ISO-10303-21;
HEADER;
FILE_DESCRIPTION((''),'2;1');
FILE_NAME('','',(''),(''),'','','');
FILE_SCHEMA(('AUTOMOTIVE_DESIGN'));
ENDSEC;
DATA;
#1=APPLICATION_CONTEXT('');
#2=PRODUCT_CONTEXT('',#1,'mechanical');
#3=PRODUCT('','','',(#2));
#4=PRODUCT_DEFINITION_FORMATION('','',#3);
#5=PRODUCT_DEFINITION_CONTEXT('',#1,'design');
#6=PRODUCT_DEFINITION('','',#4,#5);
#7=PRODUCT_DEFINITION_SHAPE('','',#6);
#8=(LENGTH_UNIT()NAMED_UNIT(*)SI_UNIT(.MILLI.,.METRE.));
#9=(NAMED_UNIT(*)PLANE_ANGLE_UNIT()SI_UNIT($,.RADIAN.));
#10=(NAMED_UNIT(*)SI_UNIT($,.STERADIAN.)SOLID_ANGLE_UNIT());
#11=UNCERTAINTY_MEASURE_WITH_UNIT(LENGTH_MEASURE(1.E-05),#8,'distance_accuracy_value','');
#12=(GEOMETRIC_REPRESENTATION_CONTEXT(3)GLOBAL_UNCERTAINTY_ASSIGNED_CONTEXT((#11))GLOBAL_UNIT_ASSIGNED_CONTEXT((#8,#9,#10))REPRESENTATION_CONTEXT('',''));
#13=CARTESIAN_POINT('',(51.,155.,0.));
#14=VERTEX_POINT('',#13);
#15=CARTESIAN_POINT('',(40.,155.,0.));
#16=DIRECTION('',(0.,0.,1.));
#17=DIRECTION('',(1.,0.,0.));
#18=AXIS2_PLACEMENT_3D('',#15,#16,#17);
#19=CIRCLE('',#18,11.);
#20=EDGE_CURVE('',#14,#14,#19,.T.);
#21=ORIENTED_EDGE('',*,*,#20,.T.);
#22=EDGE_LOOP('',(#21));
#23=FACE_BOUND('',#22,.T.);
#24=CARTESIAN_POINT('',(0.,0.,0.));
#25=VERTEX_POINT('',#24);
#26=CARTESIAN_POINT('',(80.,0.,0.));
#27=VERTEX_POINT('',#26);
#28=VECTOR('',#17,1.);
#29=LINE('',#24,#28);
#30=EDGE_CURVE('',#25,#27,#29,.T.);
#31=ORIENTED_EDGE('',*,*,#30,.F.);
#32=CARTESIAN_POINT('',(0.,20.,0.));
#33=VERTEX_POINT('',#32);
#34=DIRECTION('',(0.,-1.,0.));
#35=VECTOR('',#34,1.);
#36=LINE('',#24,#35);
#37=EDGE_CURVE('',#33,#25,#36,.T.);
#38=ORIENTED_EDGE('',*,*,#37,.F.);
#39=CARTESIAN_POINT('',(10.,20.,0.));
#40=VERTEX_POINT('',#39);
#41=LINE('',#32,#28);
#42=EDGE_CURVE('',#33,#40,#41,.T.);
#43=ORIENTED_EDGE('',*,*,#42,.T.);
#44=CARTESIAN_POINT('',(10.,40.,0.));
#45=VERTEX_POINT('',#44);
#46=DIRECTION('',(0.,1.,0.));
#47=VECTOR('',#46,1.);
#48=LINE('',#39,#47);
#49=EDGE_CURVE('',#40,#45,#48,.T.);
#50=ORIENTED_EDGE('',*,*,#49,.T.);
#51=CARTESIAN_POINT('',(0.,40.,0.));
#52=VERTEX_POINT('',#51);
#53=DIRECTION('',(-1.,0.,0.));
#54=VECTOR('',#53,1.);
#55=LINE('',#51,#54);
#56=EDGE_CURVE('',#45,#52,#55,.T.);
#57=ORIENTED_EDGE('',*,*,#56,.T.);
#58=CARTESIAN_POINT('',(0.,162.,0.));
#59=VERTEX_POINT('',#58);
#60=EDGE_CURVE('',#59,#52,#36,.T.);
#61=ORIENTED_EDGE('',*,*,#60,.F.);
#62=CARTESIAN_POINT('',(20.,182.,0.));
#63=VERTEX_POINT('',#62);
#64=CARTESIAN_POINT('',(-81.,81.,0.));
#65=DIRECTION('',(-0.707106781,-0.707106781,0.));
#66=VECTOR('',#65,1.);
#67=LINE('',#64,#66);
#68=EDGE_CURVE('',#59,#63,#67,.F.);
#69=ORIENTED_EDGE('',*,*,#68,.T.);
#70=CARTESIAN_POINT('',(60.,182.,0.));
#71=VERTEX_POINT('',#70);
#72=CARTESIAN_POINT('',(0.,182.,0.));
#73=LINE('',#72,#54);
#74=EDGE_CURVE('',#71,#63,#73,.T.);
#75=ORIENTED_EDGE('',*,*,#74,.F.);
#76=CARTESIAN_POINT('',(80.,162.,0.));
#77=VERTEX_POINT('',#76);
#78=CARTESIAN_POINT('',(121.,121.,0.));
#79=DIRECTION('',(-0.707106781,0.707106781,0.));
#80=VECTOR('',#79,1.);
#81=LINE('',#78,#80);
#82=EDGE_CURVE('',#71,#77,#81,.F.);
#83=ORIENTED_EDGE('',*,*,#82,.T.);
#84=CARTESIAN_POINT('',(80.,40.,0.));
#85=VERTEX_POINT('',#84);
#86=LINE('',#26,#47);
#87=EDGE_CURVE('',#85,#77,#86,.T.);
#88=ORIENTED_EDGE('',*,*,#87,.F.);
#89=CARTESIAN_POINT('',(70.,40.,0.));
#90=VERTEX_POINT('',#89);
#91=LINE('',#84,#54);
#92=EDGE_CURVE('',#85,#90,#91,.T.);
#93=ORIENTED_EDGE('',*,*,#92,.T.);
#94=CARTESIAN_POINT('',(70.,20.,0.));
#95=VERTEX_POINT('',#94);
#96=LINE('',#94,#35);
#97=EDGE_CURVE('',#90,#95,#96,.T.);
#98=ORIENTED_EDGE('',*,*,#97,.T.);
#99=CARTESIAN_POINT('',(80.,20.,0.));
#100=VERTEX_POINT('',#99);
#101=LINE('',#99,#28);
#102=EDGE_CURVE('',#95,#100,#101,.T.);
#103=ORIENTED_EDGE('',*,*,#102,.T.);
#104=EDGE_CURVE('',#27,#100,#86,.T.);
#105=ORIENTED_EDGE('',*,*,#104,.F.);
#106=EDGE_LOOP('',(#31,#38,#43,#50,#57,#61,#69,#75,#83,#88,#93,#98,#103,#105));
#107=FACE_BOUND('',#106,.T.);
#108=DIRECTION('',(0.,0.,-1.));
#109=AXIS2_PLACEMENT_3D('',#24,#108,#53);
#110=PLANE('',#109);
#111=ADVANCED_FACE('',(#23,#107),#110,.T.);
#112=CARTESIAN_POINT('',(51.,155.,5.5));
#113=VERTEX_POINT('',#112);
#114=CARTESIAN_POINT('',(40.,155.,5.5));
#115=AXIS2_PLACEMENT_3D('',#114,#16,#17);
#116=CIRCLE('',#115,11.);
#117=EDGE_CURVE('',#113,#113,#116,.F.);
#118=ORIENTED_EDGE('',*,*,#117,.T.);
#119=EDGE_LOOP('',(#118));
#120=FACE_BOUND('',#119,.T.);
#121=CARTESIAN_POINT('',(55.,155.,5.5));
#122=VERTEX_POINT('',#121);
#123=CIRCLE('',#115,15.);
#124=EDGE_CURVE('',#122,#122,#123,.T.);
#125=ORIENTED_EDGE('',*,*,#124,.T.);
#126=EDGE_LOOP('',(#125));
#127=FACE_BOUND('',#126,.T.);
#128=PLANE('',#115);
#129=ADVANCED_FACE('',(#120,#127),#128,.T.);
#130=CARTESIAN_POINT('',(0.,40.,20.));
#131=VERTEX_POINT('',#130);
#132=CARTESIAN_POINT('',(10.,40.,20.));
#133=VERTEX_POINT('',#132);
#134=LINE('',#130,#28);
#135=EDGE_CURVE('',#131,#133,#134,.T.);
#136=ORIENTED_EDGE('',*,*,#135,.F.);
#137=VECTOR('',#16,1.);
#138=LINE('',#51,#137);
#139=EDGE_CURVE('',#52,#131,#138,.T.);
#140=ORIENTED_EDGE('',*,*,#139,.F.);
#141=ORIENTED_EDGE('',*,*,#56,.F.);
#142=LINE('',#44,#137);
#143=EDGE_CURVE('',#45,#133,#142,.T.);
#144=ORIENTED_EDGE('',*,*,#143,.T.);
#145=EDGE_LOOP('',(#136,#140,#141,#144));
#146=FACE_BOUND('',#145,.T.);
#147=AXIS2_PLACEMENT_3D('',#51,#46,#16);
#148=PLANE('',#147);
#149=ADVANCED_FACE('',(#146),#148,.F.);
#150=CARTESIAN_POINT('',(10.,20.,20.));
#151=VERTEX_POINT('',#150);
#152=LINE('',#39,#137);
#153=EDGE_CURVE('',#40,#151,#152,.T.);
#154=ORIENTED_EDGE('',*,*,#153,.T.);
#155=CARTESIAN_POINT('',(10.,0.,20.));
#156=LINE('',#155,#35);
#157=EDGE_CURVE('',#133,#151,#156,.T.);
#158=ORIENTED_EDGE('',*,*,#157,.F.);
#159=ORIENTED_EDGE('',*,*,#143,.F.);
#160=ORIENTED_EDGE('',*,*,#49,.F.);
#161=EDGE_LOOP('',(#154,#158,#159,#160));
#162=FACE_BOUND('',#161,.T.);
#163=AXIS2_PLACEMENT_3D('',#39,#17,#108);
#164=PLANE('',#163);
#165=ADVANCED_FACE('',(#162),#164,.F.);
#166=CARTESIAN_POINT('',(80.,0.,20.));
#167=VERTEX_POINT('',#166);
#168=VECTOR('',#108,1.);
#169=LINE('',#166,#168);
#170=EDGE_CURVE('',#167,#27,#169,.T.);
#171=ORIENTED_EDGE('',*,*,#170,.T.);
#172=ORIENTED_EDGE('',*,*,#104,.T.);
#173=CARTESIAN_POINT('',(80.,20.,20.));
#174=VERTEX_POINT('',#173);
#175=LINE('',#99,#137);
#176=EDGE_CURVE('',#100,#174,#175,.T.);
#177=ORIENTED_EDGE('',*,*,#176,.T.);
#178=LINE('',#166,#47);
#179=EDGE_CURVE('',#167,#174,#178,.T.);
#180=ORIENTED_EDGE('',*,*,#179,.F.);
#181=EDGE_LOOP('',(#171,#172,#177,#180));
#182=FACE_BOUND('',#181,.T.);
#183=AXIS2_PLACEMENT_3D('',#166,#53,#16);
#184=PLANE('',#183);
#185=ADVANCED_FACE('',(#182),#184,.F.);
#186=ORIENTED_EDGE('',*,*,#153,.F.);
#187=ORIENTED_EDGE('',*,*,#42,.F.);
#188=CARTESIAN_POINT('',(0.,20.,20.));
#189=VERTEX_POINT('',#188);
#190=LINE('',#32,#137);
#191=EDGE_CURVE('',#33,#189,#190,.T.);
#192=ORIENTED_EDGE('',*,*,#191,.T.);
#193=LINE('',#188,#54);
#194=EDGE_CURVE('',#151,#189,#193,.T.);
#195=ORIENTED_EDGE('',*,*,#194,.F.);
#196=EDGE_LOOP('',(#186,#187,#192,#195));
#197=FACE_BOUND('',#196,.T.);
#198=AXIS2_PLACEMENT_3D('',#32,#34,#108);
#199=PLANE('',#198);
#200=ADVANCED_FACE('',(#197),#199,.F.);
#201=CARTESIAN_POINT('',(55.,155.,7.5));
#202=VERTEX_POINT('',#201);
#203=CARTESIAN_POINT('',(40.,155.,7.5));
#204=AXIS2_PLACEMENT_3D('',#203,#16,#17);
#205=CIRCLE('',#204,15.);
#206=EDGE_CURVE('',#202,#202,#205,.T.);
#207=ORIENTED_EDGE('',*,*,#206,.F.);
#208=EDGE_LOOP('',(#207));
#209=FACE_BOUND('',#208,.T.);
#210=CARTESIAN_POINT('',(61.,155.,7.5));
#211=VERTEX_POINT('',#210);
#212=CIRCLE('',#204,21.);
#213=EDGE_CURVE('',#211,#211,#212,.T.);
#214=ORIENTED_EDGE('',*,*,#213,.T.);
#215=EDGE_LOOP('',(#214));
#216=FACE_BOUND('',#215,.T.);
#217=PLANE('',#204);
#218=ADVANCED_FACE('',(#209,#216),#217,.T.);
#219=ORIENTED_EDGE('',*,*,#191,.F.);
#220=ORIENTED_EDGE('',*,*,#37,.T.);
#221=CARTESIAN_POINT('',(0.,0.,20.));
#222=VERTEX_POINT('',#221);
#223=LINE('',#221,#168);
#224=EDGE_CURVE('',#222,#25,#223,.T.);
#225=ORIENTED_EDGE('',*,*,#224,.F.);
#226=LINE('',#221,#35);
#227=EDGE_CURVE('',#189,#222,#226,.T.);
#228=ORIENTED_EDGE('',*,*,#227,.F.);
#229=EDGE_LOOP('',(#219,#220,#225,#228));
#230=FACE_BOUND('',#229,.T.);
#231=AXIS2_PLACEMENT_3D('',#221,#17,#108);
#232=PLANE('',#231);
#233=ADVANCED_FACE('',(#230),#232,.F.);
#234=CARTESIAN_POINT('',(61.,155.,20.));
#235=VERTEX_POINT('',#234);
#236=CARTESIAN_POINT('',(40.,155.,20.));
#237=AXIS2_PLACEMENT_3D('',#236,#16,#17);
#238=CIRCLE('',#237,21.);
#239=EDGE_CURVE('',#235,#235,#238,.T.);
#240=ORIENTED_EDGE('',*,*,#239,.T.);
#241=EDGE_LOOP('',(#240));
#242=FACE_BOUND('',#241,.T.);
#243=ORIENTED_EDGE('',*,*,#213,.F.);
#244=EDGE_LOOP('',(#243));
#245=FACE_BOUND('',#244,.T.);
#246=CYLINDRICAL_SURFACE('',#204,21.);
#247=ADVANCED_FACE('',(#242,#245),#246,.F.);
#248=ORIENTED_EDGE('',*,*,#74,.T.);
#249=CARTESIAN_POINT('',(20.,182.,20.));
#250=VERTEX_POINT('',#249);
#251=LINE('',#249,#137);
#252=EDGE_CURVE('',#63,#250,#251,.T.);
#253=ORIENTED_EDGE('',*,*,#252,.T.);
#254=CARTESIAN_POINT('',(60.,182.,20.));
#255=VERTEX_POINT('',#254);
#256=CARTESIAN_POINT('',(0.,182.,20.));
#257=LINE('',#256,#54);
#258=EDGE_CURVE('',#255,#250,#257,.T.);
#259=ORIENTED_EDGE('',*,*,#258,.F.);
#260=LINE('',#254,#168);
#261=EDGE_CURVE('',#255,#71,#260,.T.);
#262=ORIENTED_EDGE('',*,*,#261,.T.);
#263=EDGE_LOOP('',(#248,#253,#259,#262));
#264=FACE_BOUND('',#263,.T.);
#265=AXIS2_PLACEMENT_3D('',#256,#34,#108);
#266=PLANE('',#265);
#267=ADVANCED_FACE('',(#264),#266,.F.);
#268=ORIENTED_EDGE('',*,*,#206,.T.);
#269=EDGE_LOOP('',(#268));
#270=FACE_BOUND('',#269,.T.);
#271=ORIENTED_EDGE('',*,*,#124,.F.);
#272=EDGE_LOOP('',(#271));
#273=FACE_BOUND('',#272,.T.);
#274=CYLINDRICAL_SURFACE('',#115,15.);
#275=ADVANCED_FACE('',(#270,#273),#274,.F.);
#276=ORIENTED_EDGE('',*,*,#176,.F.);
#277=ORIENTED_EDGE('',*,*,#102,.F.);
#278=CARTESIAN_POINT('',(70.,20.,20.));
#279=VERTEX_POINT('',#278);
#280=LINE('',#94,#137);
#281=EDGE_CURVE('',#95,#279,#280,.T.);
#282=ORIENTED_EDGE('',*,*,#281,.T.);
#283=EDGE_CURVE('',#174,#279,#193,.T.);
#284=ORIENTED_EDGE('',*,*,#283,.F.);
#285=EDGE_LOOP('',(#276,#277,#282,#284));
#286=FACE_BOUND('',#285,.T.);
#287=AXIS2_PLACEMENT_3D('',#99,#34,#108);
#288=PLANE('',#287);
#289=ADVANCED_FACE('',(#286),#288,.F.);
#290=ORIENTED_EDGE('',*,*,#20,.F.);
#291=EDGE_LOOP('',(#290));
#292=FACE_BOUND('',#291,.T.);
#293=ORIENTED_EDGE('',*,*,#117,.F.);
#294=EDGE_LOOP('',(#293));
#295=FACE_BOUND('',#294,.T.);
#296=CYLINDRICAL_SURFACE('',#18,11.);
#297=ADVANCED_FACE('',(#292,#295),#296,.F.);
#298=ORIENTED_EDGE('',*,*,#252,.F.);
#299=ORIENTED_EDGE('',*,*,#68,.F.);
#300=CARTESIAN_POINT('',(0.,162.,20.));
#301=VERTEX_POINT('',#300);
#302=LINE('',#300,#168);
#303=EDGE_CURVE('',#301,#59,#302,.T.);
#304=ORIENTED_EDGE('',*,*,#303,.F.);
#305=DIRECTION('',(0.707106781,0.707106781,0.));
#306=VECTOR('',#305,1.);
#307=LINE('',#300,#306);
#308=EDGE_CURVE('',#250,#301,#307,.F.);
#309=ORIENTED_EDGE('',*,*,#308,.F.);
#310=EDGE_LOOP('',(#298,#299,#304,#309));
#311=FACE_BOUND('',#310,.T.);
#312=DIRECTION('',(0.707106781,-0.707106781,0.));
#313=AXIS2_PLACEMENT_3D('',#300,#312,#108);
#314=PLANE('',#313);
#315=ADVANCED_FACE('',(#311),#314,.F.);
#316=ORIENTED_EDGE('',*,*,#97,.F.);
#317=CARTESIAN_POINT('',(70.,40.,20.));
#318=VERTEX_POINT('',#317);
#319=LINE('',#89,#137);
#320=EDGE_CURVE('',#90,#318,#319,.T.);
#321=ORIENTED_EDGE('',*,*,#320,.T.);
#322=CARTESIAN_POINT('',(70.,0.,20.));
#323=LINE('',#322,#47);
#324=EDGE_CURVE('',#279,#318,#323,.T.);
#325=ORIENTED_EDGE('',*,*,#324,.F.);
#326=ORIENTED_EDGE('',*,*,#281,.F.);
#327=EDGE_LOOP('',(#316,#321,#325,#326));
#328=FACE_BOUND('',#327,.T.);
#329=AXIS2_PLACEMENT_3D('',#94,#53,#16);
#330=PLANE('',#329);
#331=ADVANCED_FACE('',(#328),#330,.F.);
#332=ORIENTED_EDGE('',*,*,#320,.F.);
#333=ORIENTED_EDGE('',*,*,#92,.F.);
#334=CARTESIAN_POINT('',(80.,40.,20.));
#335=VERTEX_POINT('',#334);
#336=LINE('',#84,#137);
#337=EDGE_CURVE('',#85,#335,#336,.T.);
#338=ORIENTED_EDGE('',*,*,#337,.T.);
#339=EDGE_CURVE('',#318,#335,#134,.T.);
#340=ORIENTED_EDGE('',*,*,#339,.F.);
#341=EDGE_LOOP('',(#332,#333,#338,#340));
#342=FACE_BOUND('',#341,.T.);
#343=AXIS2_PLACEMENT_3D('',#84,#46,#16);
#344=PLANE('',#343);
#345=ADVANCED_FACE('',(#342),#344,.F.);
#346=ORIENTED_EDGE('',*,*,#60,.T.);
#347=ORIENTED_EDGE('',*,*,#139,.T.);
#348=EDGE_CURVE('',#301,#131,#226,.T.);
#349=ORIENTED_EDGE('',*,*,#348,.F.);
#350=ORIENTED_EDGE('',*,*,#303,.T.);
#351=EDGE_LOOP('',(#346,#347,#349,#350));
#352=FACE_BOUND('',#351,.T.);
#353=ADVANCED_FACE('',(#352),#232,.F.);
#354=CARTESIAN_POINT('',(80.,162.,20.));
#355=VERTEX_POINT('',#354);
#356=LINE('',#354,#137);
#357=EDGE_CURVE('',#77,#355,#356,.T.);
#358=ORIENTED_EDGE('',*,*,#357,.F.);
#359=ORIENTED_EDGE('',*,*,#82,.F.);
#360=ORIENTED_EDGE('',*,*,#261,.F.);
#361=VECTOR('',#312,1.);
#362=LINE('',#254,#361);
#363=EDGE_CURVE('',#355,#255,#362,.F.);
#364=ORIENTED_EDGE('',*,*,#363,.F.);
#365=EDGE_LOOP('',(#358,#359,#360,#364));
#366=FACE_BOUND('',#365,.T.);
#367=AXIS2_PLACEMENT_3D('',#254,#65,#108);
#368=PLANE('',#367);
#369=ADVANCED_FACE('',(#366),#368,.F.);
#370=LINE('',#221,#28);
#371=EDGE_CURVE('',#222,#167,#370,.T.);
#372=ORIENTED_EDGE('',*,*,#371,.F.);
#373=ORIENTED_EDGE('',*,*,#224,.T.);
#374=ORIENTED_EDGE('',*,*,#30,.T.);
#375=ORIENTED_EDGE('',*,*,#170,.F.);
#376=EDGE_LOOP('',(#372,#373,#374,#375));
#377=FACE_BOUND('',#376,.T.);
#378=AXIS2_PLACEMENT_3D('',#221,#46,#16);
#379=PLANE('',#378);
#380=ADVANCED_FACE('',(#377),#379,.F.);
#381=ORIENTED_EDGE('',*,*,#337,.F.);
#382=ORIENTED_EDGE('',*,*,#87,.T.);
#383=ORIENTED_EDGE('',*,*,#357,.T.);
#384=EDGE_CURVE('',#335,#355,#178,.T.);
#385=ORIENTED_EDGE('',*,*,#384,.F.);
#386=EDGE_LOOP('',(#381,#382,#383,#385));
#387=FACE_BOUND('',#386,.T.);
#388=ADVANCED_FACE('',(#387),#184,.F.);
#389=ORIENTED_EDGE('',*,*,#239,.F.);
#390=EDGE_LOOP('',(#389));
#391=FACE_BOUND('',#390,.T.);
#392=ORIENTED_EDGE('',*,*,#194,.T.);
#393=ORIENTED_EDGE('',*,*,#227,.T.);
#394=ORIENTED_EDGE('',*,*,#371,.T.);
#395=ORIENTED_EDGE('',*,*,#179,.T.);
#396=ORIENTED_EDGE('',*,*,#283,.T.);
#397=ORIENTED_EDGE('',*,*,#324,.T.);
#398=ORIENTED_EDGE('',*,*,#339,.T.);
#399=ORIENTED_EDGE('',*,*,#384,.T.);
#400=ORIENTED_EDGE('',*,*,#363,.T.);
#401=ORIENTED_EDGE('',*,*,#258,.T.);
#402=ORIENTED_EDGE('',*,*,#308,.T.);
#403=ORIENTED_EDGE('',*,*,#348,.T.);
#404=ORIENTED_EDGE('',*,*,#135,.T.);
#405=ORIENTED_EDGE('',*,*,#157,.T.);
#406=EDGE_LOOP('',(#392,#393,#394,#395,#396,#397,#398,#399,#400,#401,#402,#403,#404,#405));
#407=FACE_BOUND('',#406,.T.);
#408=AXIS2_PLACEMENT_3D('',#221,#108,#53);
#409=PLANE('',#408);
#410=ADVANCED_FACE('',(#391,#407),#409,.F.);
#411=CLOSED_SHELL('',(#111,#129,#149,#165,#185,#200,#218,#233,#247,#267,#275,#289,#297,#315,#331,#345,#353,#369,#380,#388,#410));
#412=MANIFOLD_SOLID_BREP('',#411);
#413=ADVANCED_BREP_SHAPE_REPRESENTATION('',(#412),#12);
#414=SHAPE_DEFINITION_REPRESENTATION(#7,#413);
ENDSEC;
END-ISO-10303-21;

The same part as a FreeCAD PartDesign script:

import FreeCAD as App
import Part
import Sketcher

V = App.Vector
Q = App.Units.Quantity


def edges_at(feature, points):
    """Names of the edges that pass closest to the given points."""
    edges = feature.Shape.Edges
    near = lambda p: min(range(len(edges)), key=lambda i: edges[i].distToShape(Part.Vertex(*p))[0])
    return sorted({f"Edge{near(p) + 1}" for p in points})


def add_polygon(sketch, points):
    """Adds a closed chain of lines whose ends are joined by coincident constraints."""
    first, n = sketch.GeometryCount, len(points)
    for a, b in zip(points, points[1:] + points[:1]):
        sketch.addGeometry(Part.LineSegment(App.Vector(*a, 0), App.Vector(*b, 0)), False)
    for i in range(n):
        sketch.addConstraint(Sketcher.Constraint("Coincident", first + i, 2, first + (i + 1) % n, 1))

doc = App.newDocument("Part")
body = doc.addObject("PartDesign::Body", "Body")

sketch1 = doc.addObject("Sketcher::SketchObject", "Sketch")
body.addObject(sketch1)
sketch1.AttachmentSupport = (doc.XY_Plane, [""])
sketch1.MapMode = "FlatFace"
add_polygon(sketch1, [(0, 182), (0, 0), (80, 0), (80, 182)])
sketch1.addConstraint([
    Sketcher.Constraint("Vertical", 0),
    Sketcher.Constraint("Horizontal", 1),
    Sketcher.Constraint("Vertical", 2),
    Sketcher.Constraint("Horizontal", 3),
    Sketcher.Constraint("Coincident", 0, 2, -1, 1),
    Sketcher.Constraint("DistanceX", 1, 1, 1, 2, Q("80 mm")),
    Sketcher.Constraint("DistanceY", 0, 2, 0, 1, Q("182 mm")),
])
pad1 = doc.addObject("PartDesign::Pad", "Pad")
body.addObject(pad1)
pad1.Profile = sketch1
pad1.Length = 20

sketch2 = doc.addObject("Sketcher::SketchObject", "Sketch001")
body.addObject(sketch2)
sketch2.AttachmentSupport = (doc.XY_Plane, [""])
sketch2.MapMode = "FlatFace"
sketch2.AttachmentOffset = App.Placement(V(0, 0, 20), App.Rotation())
sketch2.addGeometry(Part.Circle(V(40, 155, 0), V(0, 0, 1), 11), False)
sketch2.addConstraint([
    Sketcher.Constraint("Diameter", 0, Q("22 mm")),
    Sketcher.Constraint("DistanceX", -1, 1, 0, 3, Q("40 mm")),
    Sketcher.Constraint("DistanceY", -1, 1, 0, 3, Q("155 mm")),
])
pocket1 = doc.addObject("PartDesign::Pocket", "Pocket")
body.addObject(pocket1)
pocket1.Profile = sketch2
pocket1.Type = "ThroughAll"
pocket1.Midplane = True
doc.recompute()

chamfer = doc.addObject("PartDesign::Chamfer", "Chamfer")
body.addObject(chamfer)
chamfer.Base = (pocket1, edges_at(pocket1, [(0, 182, 10), (80, 182, 10)]))
chamfer.Size = 20

sketch3 = doc.addObject("Sketcher::SketchObject", "Sketch002")
body.addObject(sketch3)
sketch3.AttachmentSupport = (doc.XY_Plane, [""])
sketch3.MapMode = "FlatFace"
sketch3.AttachmentOffset = App.Placement(V(0, 0, 20), App.Rotation())
sketch3.addGeometry(Part.Circle(V(40, 155, 0), V(0, 0, 1), 21), False)
sketch3.addConstraint([
    Sketcher.Constraint("Diameter", 0, Q("42 mm")),
    Sketcher.Constraint("DistanceX", -1, 1, 0, 3, Q("40 mm")),
    Sketcher.Constraint("DistanceY", -1, 1, 0, 3, Q("155 mm")),
])
pocket2 = doc.addObject("PartDesign::Pocket", "Pocket001")
body.addObject(pocket2)
pocket2.Profile = sketch3
pocket2.Length = 12.5

sketch4 = doc.addObject("Sketcher::SketchObject", "Sketch003")
body.addObject(sketch4)
sketch4.AttachmentSupport = (doc.XY_Plane, [""])
sketch4.MapMode = "FlatFace"
sketch4.AttachmentOffset = App.Placement(V(0, 0, 7.5), App.Rotation())
sketch4.addGeometry(Part.Circle(V(40, 155, 0), V(0, 0, 1), 15), False)
sketch4.addConstraint([
    Sketcher.Constraint("Diameter", 0, Q("30 mm")),
    Sketcher.Constraint("DistanceX", -1, 1, 0, 3, Q("40 mm")),
    Sketcher.Constraint("DistanceY", -1, 1, 0, 3, Q("155 mm")),
])
pocket3 = doc.addObject("PartDesign::Pocket", "Pocket002")
body.addObject(pocket3)
pocket3.Profile = sketch4
pocket3.Length = 2

sketch5 = doc.addObject("Sketcher::SketchObject", "Sketch004")
body.addObject(sketch5)
sketch5.AttachmentSupport = (doc.XY_Plane, [""])
sketch5.MapMode = "FlatFace"
sketch5.AttachmentOffset = App.Placement(V(0, 0, 20), App.Rotation())
add_polygon(sketch5, [(70, 40), (70, 20), (80, 20), (80, 40)])
add_polygon(sketch5, [(0, 40), (0, 20), (10, 20), (10, 40)])
sketch5.addConstraint([
    Sketcher.Constraint("Vertical", 0),
    Sketcher.Constraint("Horizontal", 1),
    Sketcher.Constraint("Vertical", 2),
    Sketcher.Constraint("Horizontal", 3),
    Sketcher.Constraint("Vertical", 4),
    Sketcher.Constraint("Horizontal", 5),
    Sketcher.Constraint("Vertical", 6),
    Sketcher.Constraint("Horizontal", 7),
    Sketcher.Constraint("PointOnObject", 4, 2, -2),
    Sketcher.Constraint("Horizontal", 1, 2, 4, 2),
    Sketcher.Constraint("Horizontal", 3, 2, 6, 2),
    Sketcher.Constraint("Equal", 3, 5),
    Sketcher.Constraint("DistanceX", 1, 1, 1, 2, Q("10 mm")),
    Sketcher.Constraint("DistanceY", 0, 2, 0, 1, Q("20 mm")),
    Sketcher.Constraint("DistanceX", -1, 1, 0, 2, Q("70 mm")),
    Sketcher.Constraint("DistanceY", -1, 1, 0, 2, Q("20 mm")),
])
pocket4 = doc.addObject("PartDesign::Pocket", "Pocket003")
body.addObject(pocket4)
pocket4.Profile = sketch5
pocket4.Type = "ThroughAll"
pocket4.Midplane = True

doc.recompute()
